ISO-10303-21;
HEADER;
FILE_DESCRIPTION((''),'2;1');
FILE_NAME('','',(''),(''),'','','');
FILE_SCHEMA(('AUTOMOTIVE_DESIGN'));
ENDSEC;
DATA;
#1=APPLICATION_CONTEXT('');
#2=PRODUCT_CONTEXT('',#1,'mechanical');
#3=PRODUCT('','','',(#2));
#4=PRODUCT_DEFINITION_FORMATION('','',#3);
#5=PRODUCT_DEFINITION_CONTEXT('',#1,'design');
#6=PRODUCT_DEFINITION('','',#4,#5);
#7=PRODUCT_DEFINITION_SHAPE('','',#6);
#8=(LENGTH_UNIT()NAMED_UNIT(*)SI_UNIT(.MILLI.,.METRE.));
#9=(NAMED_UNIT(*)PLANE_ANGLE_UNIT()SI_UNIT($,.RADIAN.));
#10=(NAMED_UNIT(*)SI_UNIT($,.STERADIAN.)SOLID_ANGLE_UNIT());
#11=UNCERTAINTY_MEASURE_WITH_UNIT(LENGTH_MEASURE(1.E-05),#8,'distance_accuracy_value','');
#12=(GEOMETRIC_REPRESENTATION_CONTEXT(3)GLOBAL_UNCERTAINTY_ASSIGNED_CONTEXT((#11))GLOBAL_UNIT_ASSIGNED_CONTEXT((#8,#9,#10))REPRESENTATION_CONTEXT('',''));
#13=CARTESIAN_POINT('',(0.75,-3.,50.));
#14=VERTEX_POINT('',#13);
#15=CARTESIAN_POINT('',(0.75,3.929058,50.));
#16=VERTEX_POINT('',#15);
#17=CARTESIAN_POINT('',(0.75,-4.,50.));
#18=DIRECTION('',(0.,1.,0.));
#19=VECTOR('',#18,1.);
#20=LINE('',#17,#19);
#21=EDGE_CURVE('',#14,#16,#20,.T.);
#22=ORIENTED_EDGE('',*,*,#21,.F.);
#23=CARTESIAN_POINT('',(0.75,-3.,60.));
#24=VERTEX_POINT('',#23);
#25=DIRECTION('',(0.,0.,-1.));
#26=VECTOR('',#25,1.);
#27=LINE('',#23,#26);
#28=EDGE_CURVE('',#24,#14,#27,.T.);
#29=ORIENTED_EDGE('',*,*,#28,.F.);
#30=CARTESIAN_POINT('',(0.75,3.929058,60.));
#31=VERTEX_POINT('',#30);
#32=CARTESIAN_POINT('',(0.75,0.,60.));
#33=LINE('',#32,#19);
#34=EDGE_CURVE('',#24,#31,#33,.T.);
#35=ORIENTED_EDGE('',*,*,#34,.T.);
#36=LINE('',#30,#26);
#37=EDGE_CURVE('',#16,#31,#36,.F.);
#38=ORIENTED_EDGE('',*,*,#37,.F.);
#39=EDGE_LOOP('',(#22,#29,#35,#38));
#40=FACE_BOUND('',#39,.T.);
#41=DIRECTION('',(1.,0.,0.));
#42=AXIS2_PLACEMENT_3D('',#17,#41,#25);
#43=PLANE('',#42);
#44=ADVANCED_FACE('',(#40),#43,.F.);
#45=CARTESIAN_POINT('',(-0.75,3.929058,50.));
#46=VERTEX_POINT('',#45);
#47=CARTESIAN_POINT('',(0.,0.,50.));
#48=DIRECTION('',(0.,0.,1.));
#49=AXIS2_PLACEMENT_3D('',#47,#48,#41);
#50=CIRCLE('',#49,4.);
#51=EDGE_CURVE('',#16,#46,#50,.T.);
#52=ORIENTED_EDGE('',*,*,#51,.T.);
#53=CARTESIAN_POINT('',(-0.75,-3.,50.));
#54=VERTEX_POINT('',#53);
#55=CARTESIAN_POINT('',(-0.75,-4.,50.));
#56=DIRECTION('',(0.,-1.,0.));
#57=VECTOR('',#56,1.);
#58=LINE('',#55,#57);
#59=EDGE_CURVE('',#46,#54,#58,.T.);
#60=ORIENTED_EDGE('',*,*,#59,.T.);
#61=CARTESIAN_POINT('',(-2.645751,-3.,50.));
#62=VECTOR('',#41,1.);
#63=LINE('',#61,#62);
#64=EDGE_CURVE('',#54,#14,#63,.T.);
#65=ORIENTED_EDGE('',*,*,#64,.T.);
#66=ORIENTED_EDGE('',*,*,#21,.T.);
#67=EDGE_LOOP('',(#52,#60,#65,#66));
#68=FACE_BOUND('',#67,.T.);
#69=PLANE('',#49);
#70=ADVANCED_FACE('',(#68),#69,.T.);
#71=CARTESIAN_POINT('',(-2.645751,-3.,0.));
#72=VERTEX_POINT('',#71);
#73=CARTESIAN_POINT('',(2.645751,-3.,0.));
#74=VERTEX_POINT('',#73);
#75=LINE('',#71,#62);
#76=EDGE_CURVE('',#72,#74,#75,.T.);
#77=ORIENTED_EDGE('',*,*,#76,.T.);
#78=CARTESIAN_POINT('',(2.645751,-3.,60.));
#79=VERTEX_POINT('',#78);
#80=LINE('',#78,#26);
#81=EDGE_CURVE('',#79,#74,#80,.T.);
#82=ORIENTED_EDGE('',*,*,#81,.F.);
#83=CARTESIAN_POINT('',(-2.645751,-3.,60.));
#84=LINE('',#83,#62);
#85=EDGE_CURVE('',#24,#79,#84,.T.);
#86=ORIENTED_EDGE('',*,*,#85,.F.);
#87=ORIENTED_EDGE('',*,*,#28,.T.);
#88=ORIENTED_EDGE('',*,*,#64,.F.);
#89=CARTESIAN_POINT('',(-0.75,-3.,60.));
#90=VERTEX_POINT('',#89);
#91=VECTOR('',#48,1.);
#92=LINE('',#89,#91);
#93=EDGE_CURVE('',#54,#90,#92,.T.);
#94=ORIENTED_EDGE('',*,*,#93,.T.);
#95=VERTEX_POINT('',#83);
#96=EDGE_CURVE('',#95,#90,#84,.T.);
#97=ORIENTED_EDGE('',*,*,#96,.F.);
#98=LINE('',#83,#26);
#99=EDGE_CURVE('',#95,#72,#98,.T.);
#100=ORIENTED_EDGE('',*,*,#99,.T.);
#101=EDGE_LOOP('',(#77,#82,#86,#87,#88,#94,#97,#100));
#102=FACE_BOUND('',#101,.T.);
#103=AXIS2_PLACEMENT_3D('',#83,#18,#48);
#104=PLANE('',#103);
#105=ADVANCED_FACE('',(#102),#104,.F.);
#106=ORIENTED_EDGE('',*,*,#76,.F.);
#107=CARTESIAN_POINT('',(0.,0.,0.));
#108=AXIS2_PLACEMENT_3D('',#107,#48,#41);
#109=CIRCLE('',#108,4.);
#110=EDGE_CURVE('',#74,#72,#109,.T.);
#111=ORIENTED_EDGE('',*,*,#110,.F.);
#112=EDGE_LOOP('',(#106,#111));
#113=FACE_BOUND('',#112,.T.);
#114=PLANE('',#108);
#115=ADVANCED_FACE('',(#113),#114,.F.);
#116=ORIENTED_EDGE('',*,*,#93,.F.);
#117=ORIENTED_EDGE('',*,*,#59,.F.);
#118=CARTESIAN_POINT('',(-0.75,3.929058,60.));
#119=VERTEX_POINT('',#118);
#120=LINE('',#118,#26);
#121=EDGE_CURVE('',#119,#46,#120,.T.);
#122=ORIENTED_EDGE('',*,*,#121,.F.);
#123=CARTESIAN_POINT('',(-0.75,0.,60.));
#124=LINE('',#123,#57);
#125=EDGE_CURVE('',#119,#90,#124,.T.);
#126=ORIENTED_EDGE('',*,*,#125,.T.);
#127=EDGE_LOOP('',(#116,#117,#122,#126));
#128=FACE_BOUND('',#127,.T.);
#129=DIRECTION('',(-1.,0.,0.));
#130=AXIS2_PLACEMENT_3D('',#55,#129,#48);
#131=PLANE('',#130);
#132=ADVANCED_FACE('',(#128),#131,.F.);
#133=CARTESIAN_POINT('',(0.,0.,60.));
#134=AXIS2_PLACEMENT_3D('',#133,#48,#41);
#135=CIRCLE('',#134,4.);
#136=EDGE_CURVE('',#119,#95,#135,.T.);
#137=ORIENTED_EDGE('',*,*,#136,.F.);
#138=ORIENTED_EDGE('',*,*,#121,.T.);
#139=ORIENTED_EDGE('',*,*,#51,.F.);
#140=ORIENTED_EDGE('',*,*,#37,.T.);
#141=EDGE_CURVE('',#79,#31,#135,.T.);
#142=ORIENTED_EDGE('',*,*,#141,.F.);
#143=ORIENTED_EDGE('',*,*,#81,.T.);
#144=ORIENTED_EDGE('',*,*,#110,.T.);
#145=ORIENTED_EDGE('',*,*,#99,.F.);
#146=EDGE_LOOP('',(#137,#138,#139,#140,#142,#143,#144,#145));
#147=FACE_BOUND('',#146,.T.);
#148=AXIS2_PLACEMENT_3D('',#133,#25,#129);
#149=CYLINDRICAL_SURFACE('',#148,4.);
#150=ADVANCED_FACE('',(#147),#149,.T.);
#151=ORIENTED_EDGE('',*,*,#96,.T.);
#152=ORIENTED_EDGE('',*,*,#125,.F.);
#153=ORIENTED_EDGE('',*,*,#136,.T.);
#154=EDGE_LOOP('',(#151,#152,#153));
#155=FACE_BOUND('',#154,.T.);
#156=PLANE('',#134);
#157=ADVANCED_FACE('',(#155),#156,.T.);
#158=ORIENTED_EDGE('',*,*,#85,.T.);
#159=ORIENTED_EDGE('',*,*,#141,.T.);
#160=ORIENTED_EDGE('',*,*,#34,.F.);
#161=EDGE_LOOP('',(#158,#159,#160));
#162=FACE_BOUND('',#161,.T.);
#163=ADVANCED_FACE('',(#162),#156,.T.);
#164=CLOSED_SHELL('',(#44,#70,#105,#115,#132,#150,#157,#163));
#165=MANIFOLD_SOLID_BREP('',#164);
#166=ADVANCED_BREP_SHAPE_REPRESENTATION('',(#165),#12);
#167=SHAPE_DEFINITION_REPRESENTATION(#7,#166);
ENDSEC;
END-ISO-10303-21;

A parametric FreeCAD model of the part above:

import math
import FreeCAD as App
import Part
import Sketcher
from FreeCAD import Vector
Q = App.Units.Quantity

doc = App.newDocument("Part")
body = doc.addObject("PartDesign::Body", "Body")

sketch1 = body.newObject("Sketcher::SketchObject", "Sketch")
sketch1.AttachmentSupport = (doc.getObject("XY_Plane"), [""])
sketch1.MapMode = "FlatFace"
sketch1.addGeometry(Part.LineSegment(Vector(-2.6, -3, 0), Vector(2.6, -3, 0)), False)
sketch1.addGeometry(Part.ArcOfCircle(Part.Circle(Vector(0, 0, 0), Vector(0, 0, 1), 4), math.radians(-49), math.radians(229)), False)
sketch1.addConstraint(Sketcher.Constraint("Coincident", 0, 1, 1, 2))
sketch1.addConstraint(Sketcher.Constraint("Coincident", 1, 1, 0, 2))
sketch1.addConstraint(Sketcher.Constraint("Horizontal", 0))
sketch1.addConstraint(Sketcher.Constraint("Coincident", 1, 3, -1, 1))
sketch1.addConstraint(Sketcher.Constraint("Radius", 1, Q("4 mm")))
sketch1.addConstraint(Sketcher.Constraint("DistanceY", 0, 1, -1, 1, Q("3 mm")))
pad1 = body.newObject("PartDesign::Pad", "Pad")
pad1.Profile = sketch1
pad1.Length = 60

sketch2 = body.newObject("Sketcher::SketchObject", "Sketch001")
sketch2.AttachmentSupport = (doc.getObject("XY_Plane"), [""])
sketch2.MapMode = "FlatFace"
sketch2.AttachmentOffset = App.Placement(Vector(0, 0, 60), App.Rotation())
sketch2.addGeometry(Part.LineSegment(Vector(-0.8, 4, 0), Vector(-0.8, -4, 0)), False)
sketch2.addGeometry(Part.LineSegment(Vector(-0.8, -4, 0), Vector(0.8, -4, 0)), False)
sketch2.addGeometry(Part.LineSegment(Vector(0.8, -4, 0), Vector(0.8, 4, 0)), False)
sketch2.addGeometry(Part.LineSegment(Vector(0.8, 4, 0), Vector(-0.8, 4, 0)), False)
sketch2.addConstraint(Sketcher.Constraint("Coincident", 0, 2, 1, 1))
sketch2.addConstraint(Sketcher.Constraint("Coincident", 1, 2, 2, 1))
sketch2.addConstraint(Sketcher.Constraint("Coincident", 2, 2, 3, 1))
sketch2.addConstraint(Sketcher.Constraint("Coincident", 3, 2, 0, 1))
sketch2.addConstraint(Sketcher.Constraint("Vertical", 0))
sketch2.addConstraint(Sketcher.Constraint("Horizontal", 1))
sketch2.addConstraint(Sketcher.Constraint("Vertical", 2))
sketch2.addConstraint(Sketcher.Constraint("Horizontal", 3))
sketch2.addConstraint(Sketcher.Constraint("Symmetric", 0, 2, 2, 2, -1, 1))
sketch2.addConstraint(Sketcher.Constraint("DistanceY", 0, 2, 0, 1, Q("8 mm")))
sketch2.addConstraint(Sketcher.Constraint("DistanceX", 1, 1, 1, 2, Q("1.5 mm")))
pocket1 = body.newObject("PartDesign::Pocket", "Pocket")
pocket1.Profile = sketch2
pocket1.Length = 10

doc.recompute()
